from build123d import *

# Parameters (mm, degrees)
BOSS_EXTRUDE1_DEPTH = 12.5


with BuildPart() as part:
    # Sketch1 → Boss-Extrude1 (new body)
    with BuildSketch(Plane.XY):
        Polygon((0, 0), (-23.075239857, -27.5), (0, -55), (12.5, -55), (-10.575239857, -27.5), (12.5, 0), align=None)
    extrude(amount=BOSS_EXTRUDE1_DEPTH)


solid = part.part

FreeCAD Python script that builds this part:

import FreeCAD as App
import Part
import Sketcher
from FreeCAD import Vector
Q = App.Units.Quantity


def add_polygon(sketch, points):
    """Adds a closed chain of lines whose ends are joined by coincident constraints."""
    first, n = sketch.GeometryCount, len(points)
    for a, b in zip(points, points[1:] + points[:1]):
        sketch.addGeometry(Part.LineSegment(App.Vector(*a, 0), App.Vector(*b, 0)), False)
    for i in range(n):
        sketch.addConstraint(Sketcher.Constraint("Coincident", first + i, 2, first + (i + 1) % n, 1))

doc = App.newDocument("Part")
body = doc.addObject("PartDesign::Body", "Body")

# Sketch on XY plane
sketch1 = body.newObject("Sketcher::SketchObject", "Sketch")
sketch1.AttachmentSupport = (doc.getObject("XY_Plane"), [""])
sketch1.MapMode = "FlatFace"
add_polygon(sketch1, [(0, 0), (-23, -28), (0, -55), (12, -55), (-11, -28), (12, 0)])  # lines 0-5
sketch1.addConstraint(Sketcher.Constraint("Horizontal", 2))
sketch1.addConstraint(Sketcher.Constraint("Horizontal", 5))
sketch1.addConstraint(Sketcher.Constraint("Coincident", 5, 2, -1, 1))
sketch1.addConstraint(Sketcher.Constraint("PointOnObject", 1, 2, -2))
sketch1.addConstraint(Sketcher.Constraint("Parallel", 1, 3))
sketch1.addConstraint(Sketcher.Constraint("Parallel", 0, 4))
sketch1.addConstraint(Sketcher.Constraint("Horizontal", 0, 2, 3, 2))
sketch1.addConstraint(Sketcher.Constraint("Equal", 0, 1))
sketch1.addConstraint(Sketcher.Constraint("Angle", 0, Q("-130 deg")))
sketch1.addConstraint(Sketcher.Constraint("DistanceX", 2, 1, 2, 2, 12.5))
sketch1.addConstraint(Sketcher.Constraint("DistanceY", 1, 2, -1, 1, 55.0))
pad1 = body.newObject("PartDesign::Pad", "Pad")
pad1.Profile = sketch1
pad1.Length = 12.5

doc.recompute()
